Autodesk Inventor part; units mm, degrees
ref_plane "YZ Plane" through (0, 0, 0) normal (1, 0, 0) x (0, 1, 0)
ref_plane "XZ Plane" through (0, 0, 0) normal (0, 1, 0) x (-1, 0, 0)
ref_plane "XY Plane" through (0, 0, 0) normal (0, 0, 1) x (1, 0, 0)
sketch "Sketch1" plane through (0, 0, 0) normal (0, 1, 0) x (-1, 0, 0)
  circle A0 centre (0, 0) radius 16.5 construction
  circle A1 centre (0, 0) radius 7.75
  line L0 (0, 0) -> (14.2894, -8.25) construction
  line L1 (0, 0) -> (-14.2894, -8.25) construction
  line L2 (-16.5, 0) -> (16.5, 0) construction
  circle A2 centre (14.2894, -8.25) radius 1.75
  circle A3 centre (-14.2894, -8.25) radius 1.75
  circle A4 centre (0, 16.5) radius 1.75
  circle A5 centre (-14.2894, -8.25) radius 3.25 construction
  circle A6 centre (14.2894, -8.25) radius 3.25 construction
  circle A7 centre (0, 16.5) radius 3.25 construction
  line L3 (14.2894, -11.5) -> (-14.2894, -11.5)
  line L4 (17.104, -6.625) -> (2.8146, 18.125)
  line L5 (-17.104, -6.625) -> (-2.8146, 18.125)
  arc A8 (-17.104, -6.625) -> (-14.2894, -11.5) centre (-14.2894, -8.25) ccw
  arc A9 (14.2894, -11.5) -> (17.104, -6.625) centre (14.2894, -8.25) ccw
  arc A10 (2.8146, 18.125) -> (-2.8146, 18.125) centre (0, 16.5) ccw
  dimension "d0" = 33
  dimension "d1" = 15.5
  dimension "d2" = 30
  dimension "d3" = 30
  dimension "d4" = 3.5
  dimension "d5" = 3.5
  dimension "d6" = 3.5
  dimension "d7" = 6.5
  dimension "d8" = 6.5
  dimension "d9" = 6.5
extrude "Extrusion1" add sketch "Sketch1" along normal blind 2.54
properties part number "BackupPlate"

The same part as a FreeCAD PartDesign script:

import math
import FreeCAD as App
import Part
import Sketcher

V = App.Vector
Q = App.Units.Quantity

doc = App.newDocument("Part")
params = doc.addObject("Spreadsheet::Sheet", "Params")
for row, (alias, value) in enumerate([
    ("sketch1_diameter", "3.5 mm"),
    ("sketch1_diameter2", "15.5 mm"),
    ("sketch1_radius", "3.25 mm"),
    ("pad1_length", "2.54 mm"),
], start=1):
    params.set(f"A{row}", alias)
    params.set(f"B{row}", "=" + value)
    params.setAlias(f"B{row}", alias)

body = doc.addObject("PartDesign::Body", "Body")

sketch1 = body.newObject("Sketcher::SketchObject", "Sketch")
sketch1.AttachmentSupport = (doc.getObject("XZ_Plane"), [""])
sketch1.MapMode = "FlatFace"
sketch1.addGeometry(Part.LineSegment(V(14.3, -11.5, 0), V(-14.3, -11.5, 0)), False)
sketch1.addGeometry(Part.ArcOfCircle(Part.Circle(V(-14.3, -8.2, 0), V(0, 0, 1), 3.2), math.radians(150), math.radians(270)), False)
sketch1.addGeometry(Part.LineSegment(V(-17.1, -6.6, 0), V(-2.8, 18.1, 0)), False)
sketch1.addGeometry(Part.ArcOfCircle(Part.Circle(V(0, 16.5, 0), V(0, 0, 1), 3.3), math.radians(30), math.radians(150)), False)
sketch1.addGeometry(Part.LineSegment(V(2.8, 18.1, 0), V(17.1, -6.6, 0)), False)
sketch1.addGeometry(Part.ArcOfCircle(Part.Circle(V(14.3, -8.2, 0), V(0, 0, 1), 3.2), math.radians(-90), math.radians(30)), False)
sketch1.addGeometry(Part.Circle(V(14.3, -8.2, 0), V(0, 0, 1), 1.8), False)
sketch1.addGeometry(Part.Circle(V(-14.3, -8.2, 0), V(0, 0, 1), 1.8), False)
sketch1.addGeometry(Part.Circle(V(0, 0, 0), V(0, 0, 1), 7.8), False)
sketch1.addGeometry(Part.Circle(V(0, 16.5, 0), V(0, 0, 1), 1.8), False)
sketch1.addConstraint(Sketcher.Constraint("Tangent", 0, 2, 1, 2))
sketch1.addConstraint(Sketcher.Constraint("Tangent", 1, 1, 2, 1))
sketch1.addConstraint(Sketcher.Constraint("Tangent", 2, 2, 3, 2))
sketch1.addConstraint(Sketcher.Constraint("Tangent", 3, 1, 4, 1))
sketch1.addConstraint(Sketcher.Constraint("Tangent", 4, 2, 5, 2))
sketch1.addConstraint(Sketcher.Constraint("Tangent", 5, 1, 0, 1))
sketch1.addConstraint(Sketcher.Constraint("Horizontal", 0))
sketch1.addConstraint(Sketcher.Constraint("Coincident", 8, 3, -1, 1))
sketch1.addConstraint(Sketcher.Constraint("Coincident", 6, 3, 5, 3))
sketch1.addConstraint(Sketcher.Constraint("Coincident", 7, 3, 1, 3))
sketch1.addConstraint(Sketcher.Constraint("Coincident", 9, 3, 3, 3))
sketch1.addConstraint(Sketcher.Constraint("Equal", 1, 3))
sketch1.addConstraint(Sketcher.Constraint("Equal", 3, 5))
sketch1.addConstraint(Sketcher.Constraint("Equal", 6, 7))
sketch1.addConstraint(Sketcher.Constraint("Equal", 7, 9))
sketch1.addConstraint(Sketcher.Constraint("Symmetric", 2, 2, 3, 1, -2))
sketch1.addConstraint(Sketcher.Constraint("Diameter", 6, 3.5))
sketch1.addConstraint(Sketcher.Constraint("Diameter", 8, 15.5))
sketch1.addConstraint(Sketcher.Constraint("Radius", 1, 3.25))
sketch1.addConstraint(Sketcher.Constraint("Angle", 2, Q("60 deg")))
sketch1.addConstraint(Sketcher.Constraint("DistanceY", -1, 1, 3, 3, 16.5))
sketch1.addConstraint(Sketcher.Constraint("DistanceY", 0, 2, -1, 1, 11.5))
sketch1.setExpression("Constraints[16]", "Params.sketch1_diameter")
sketch1.setExpression("Constraints[17]", "Params.sketch1_diameter2")
sketch1.setExpression("Constraints[18]", "Params.sketch1_radius")
pad1 = body.newObject("PartDesign::Pad", "Pad")
pad1.Profile = sketch1
pad1.setExpression("Length", "Params.pad1_length")
pad1.Reversed = True

doc.recompute()
